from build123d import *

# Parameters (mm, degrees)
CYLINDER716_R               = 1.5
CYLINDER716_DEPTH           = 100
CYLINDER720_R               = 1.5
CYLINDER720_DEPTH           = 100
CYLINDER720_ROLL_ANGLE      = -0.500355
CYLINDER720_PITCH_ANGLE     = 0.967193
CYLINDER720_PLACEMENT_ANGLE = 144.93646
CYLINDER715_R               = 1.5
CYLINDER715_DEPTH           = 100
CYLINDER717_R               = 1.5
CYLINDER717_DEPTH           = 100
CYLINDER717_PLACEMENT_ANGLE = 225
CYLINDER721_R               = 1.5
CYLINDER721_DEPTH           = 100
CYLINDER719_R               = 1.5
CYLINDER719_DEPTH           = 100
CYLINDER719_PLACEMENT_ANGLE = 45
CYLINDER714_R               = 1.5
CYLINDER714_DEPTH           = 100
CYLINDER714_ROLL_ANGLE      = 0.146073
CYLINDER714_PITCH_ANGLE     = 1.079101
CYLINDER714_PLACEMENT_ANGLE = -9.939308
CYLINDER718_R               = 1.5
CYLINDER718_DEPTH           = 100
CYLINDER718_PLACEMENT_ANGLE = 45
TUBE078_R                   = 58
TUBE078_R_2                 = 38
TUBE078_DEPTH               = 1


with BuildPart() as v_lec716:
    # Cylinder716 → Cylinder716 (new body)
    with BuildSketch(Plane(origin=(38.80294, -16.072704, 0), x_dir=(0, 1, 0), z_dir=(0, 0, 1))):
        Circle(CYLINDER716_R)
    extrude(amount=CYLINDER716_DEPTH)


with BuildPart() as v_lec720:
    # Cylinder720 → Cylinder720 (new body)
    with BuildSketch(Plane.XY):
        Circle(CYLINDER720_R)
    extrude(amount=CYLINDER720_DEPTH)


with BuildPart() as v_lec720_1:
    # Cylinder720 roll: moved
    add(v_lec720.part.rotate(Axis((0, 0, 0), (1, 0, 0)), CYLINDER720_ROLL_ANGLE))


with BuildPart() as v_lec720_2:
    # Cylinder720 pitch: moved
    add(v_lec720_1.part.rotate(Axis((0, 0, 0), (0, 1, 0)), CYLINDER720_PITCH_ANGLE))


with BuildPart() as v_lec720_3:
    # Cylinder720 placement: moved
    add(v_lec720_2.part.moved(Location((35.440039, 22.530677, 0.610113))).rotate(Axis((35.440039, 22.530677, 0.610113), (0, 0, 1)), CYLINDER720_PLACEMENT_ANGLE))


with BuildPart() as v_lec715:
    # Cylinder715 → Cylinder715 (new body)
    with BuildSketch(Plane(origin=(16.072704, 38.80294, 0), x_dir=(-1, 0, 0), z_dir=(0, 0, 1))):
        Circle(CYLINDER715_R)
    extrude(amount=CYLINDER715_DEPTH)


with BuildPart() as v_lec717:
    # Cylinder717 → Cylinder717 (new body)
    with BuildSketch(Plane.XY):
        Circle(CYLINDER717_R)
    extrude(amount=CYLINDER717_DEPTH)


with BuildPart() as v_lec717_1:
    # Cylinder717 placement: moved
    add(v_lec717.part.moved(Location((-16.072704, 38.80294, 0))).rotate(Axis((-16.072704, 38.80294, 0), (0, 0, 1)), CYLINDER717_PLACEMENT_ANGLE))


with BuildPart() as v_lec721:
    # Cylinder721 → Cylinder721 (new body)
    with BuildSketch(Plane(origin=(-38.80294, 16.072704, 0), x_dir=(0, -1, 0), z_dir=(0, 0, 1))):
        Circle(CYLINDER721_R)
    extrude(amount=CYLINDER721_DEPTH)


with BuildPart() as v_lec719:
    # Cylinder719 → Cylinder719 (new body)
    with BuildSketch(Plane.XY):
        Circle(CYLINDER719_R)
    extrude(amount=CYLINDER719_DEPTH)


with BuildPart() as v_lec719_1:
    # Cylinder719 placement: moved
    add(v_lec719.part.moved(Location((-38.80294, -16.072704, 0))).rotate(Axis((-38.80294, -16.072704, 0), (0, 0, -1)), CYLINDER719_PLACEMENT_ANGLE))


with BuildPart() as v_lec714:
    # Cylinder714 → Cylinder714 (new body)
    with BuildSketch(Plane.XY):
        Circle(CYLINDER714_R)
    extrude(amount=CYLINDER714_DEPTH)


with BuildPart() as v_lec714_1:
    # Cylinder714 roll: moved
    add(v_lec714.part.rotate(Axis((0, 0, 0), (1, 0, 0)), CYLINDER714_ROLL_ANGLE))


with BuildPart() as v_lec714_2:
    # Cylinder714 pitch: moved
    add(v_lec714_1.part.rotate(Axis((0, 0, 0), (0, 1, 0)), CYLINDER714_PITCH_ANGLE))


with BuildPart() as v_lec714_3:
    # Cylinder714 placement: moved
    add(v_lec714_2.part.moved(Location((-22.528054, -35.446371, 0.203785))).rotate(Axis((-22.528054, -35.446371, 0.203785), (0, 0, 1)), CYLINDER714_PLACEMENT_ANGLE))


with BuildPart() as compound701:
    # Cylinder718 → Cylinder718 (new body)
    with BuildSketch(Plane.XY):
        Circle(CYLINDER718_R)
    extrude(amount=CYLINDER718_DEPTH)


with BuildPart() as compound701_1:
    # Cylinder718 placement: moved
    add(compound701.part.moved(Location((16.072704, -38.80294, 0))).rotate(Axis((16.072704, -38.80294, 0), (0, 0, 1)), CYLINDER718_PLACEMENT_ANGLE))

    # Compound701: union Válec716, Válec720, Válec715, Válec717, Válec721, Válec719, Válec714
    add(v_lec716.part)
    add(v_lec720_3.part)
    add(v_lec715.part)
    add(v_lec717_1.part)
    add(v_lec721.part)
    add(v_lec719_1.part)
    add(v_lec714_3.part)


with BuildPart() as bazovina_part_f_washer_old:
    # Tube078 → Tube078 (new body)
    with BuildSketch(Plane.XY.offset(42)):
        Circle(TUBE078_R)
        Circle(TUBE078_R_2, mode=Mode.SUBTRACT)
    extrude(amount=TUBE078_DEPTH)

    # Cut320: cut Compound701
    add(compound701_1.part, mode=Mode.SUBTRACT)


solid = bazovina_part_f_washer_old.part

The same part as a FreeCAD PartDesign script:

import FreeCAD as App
import Part
import Sketcher
from FreeCAD import Vector
Q = App.Units.Quantity

doc = App.newDocument("Part")
body = doc.addObject("PartDesign::Body", "Body")

# Sketch on XY plane
sketch1 = body.newObject("Sketcher::SketchObject", "Sketch")
sketch1.AttachmentSupport = (doc.getObject("XY_Plane"), [""])
sketch1.MapMode = "FlatFace"
sketch1.addGeometry(Part.Circle(Vector(38.8, -16.1, 0), Vector(0, 0, 1), 1.5), False)
sketch1.addConstraint([
    Sketcher.Constraint("Diameter", 0, Q("3 mm")),
    Sketcher.Constraint("DistanceX", -1, 1, 0, 3, Q("38.80294 mm")),
    Sketcher.Constraint("DistanceY", 0, 3, -1, 1, Q("16.072704 mm")),
])
pad1 = body.newObject("PartDesign::Pad", "Pad")
pad1.Profile = sketch1
pad1.Length = 100
body2 = doc.addObject("PartDesign::Body", "Body001")

# Sketch on XY plane
sketch2 = body2.newObject("Sketcher::SketchObject", "Sketch001")
sketch2.AttachmentSupport = (doc.getObject("XY_Plane001"), [""])
sketch2.MapMode = "FlatFace"
sketch2.addGeometry(Part.Circle(Vector(0, 0, 0), Vector(0, 0, 1), 1.5), False)
sketch2.addConstraint([
    Sketcher.Constraint("Coincident", 0, 3, -1, 1),
    Sketcher.Constraint("Diameter", 0, Q("3 mm")),
])
pad2 = body2.newObject("PartDesign::Pad", "Pad001")
pad2.Profile = sketch2
pad2.Length = 100
body3 = doc.addObject("PartDesign::Body", "Body002")
doc.recompute()

body2.Placement = App.Placement(Vector(0, 0, 0), App.Rotation(Vector(1, 0, 0), 359.499645))
boolean = body3.newObject("PartDesign::Boolean", "Boolean")
boolean.Type = "Fuse"
boolean.addObjects([body2])
body4 = doc.addObject("PartDesign::Body", "Body003")
doc.recompute()

body3.Placement = App.Placement(Vector(0, 0, 0), App.Rotation(Vector(0, 1, 0), 0.967193))
boolean2 = body4.newObject("PartDesign::Boolean", "Boolean001")
boolean2.Type = "Fuse"
boolean2.addObjects([body3])
body5 = doc.addObject("PartDesign::Body", "Body004")
doc.recompute()

body4.Placement = App.Placement(Vector(35.440039, 22.530677, 0.610113), App.Rotation(Vector(0, 0, 1), 144.93646))
boolean3 = body5.newObject("PartDesign::Boolean", "Boolean002")
boolean3.Type = "Fuse"
boolean3.addObjects([body4])
body6 = doc.addObject("PartDesign::Body", "Body005")

# Sketch on XY plane
sketch3 = body6.newObject("Sketcher::SketchObject", "Sketch002")
sketch3.AttachmentSupport = (doc.getObject("XY_Plane005"), [""])
sketch3.MapMode = "FlatFace"
sketch3.addGeometry(Part.Circle(Vector(16.1, 38.8, 0), Vector(0, 0, 1), 1.5), False)
sketch3.addConstraint([
    Sketcher.Constraint("Diameter", 0, Q("3 mm")),
    Sketcher.Constraint("DistanceY", -1, 1, 0, 3, Q("38.80294 mm")),
    Sketcher.Constraint("DistanceX", -1, 1, 0, 3, Q("16.072704 mm")),
])
pad3 = body6.newObject("PartDesign::Pad", "Pad002")
pad3.Profile = sketch3
pad3.Length = 100
body7 = doc.addObject("PartDesign::Body", "Body006")

# Sketch on XY plane
sketch4 = body7.newObject("Sketcher::SketchObject", "Sketch003")
sketch4.AttachmentSupport = (doc.getObject("XY_Plane006"), [""])
sketch4.MapMode = "FlatFace"
sketch4.addGeometry(Part.Circle(Vector(0, 0, 0), Vector(0, 0, 1), 1.5), False)
sketch4.addConstraint([
    Sketcher.Constraint("Coincident", 0, 3, -1, 1),
    Sketcher.Constraint("Diameter", 0, Q("3 mm")),
])
pad4 = body7.newObject("PartDesign::Pad", "Pad003")
pad4.Profile = sketch4
pad4.Length = 100
body8 = doc.addObject("PartDesign::Body", "Body007")
doc.recompute()

body7.Placement = App.Placement(Vector(-16.072704, 38.80294, 0), App.Rotation(Vector(0, 0, 1), 225))
boolean4 = body8.newObject("PartDesign::Boolean", "Boolean003")
boolean4.Type = "Fuse"
boolean4.addObjects([body7])
body9 = doc.addObject("PartDesign::Body", "Body008")

# Sketch on XY plane
sketch5 = body9.newObject("Sketcher::SketchObject", "Sketch004")
sketch5.AttachmentSupport = (doc.getObject("XY_Plane008"), [""])
sketch5.MapMode = "FlatFace"
sketch5.addGeometry(Part.Circle(Vector(-38.8, 16.1, 0), Vector(0, 0, 1), 1.5), False)
sketch5.addConstraint([
    Sketcher.Constraint("Diameter", 0, Q("3 mm")),
    Sketcher.Constraint("DistanceX", 0, 3, -1, 1, Q("38.80294 mm")),
    Sketcher.Constraint("DistanceY", -1, 1, 0, 3, Q("16.072704 mm")),
])
pad5 = body9.newObject("PartDesign::Pad", "Pad004")
pad5.Profile = sketch5
pad5.Length = 100
body10 = doc.addObject("PartDesign::Body", "Body009")

# Sketch on XY plane
sketch6 = body10.newObject("Sketcher::SketchObject", "Sketch005")
sketch6.AttachmentSupport = (doc.getObject("XY_Plane009"), [""])
sketch6.MapMode = "FlatFace"
sketch6.addGeometry(Part.Circle(Vector(0, 0, 0), Vector(0, 0, 1), 1.5), False)
sketch6.addConstraint([
    Sketcher.Constraint("Coincident", 0, 3, -1, 1),
    Sketcher.Constraint("Diameter", 0, Q("3 mm")),
])
pad6 = body10.newObject("PartDesign::Pad", "Pad005")
pad6.Profile = sketch6
pad6.Length = 100
body11 = doc.addObject("PartDesign::Body", "Body010")
doc.recompute()

body10.Placement = App.Placement(Vector(-38.80294, -16.072704, 0), App.Rotation(Vector(0, 0, -1), 45))
boolean5 = body11.newObject("PartDesign::Boolean", "Boolean004")
boolean5.Type = "Fuse"
boolean5.addObjects([body10])
body12 = doc.addObject("PartDesign::Body", "Body011")

# Sketch on XY plane
sketch7 = body12.newObject("Sketcher::SketchObject", "Sketch006")
sketch7.AttachmentSupport = (doc.getObject("XY_Plane011"), [""])
sketch7.MapMode = "FlatFace"
sketch7.addGeometry(Part.Circle(Vector(0, 0, 0), Vector(0, 0, 1), 1.5), False)
sketch7.addConstraint([
    Sketcher.Constraint("Coincident", 0, 3, -1, 1),
    Sketcher.Constraint("Diameter", 0, Q("3 mm")),
])
pad7 = body12.newObject("PartDesign::Pad", "Pad006")
pad7.Profile = sketch7
pad7.Length = 100
body13 = doc.addObject("PartDesign::Body", "Body012")
doc.recompute()

body12.Placement = App.Placement(Vector(0, 0, 0), App.Rotation(Vector(1, 0, 0), 0.146073))
boolean6 = body13.newObject("PartDesign::Boolean", "Boolean005")
boolean6.Type = "Fuse"
boolean6.addObjects([body12])
body14 = doc.addObject("PartDesign::Body", "Body013")
doc.recompute()

body13.Placement = App.Placement(Vector(0, 0, 0), App.Rotation(Vector(0, 1, 0), 1.079101))
boolean7 = body14.newObject("PartDesign::Boolean", "Boolean006")
boolean7.Type = "Fuse"
boolean7.addObjects([body13])
body15 = doc.addObject("PartDesign::Body", "Body014")
doc.recompute()

body14.Placement = App.Placement(Vector(-22.528054, -35.446371, 0.203785), App.Rotation(Vector(0, 0, 1), 350.060692))
boolean8 = body15.newObject("PartDesign::Boolean", "Boolean007")
boolean8.Type = "Fuse"
boolean8.addObjects([body14])
body16 = doc.addObject("PartDesign::Body", "Body015")

# Sketch on XY plane
sketch8 = body16.newObject("Sketcher::SketchObject", "Sketch007")
sketch8.AttachmentSupport = (doc.getObject("XY_Plane015"), [""])
sketch8.MapMode = "FlatFace"
sketch8.addGeometry(Part.Circle(Vector(0, 0, 0), Vector(0, 0, 1), 1.5), False)
sketch8.addConstraint([
    Sketcher.Constraint("Coincident", 0, 3, -1, 1),
    Sketcher.Constraint("Diameter", 0, Q("3 mm")),
])
pad8 = body16.newObject("PartDesign::Pad", "Pad007")
pad8.Profile = sketch8
pad8.Length = 100
body17 = doc.addObject("PartDesign::Body", "Body016")
body17.AllowCompound = True
doc.recompute()

body16.Placement = App.Placement(Vector(16.072704, -38.80294, 0), App.Rotation(Vector(0, 0, 1), 45))
boolean9 = body17.newObject("PartDesign::Boolean", "Boolean008")
boolean9.Type = "Fuse"
boolean9.addObjects([body16])
doc.recompute()

boolean10 = body17.newObject("PartDesign::Boolean", "Boolean009")
boolean10.Type = "Fuse"
boolean10.addObjects([body])
doc.recompute()

boolean11 = body17.newObject("PartDesign::Boolean", "Boolean010")
boolean11.Type = "Fuse"
boolean11.addObjects([body5])
doc.recompute()

boolean12 = body17.newObject("PartDesign::Boolean", "Boolean011")
boolean12.Type = "Fuse"
boolean12.addObjects([body6])
doc.recompute()

boolean13 = body17.newObject("PartDesign::Boolean", "Boolean012")
boolean13.Type = "Fuse"
boolean13.addObjects([body8])
doc.recompute()

boolean14 = body17.newObject("PartDesign::Boolean", "Boolean013")
boolean14.Type = "Fuse"
boolean14.addObjects([body9])
doc.recompute()

boolean15 = body17.newObject("PartDesign::Boolean", "Boolean014")
boolean15.Type = "Fuse"
boolean15.addObjects([body11])
doc.recompute()

boolean16 = body17.newObject("PartDesign::Boolean", "Boolean015")
boolean16.Type = "Fuse"
boolean16.addObjects([body15])
body18 = doc.addObject("PartDesign::Body", "Body017")

# Sketch on XY plane
sketch9 = body18.newObject("Sketcher::SketchObject", "Sketch008")
sketch9.AttachmentSupport = (doc.getObject("XY_Plane017"), [""])
sketch9.MapMode = "FlatFace"
sketch9.AttachmentOffset = App.Placement(Vector(0, 0, 42), App.Rotation())
sketch9.addGeometry([
    Part.Circle(Vector(0, 0, 0), Vector(0, 0, 1), 58),
    Part.Circle(Vector(0, 0, 0), Vector(0, 0, 1), 38),
], False)
sketch9.addConstraint([
    Sketcher.Constraint("Coincident", 0, 3, -1, 1),
    Sketcher.Constraint("Coincident", 1, 3, -1, 1),
    Sketcher.Constraint("Diameter", 0, Q("116 mm")),
    Sketcher.Constraint("Diameter", 1, Q("76 mm")),
])
pad9 = body18.newObject("PartDesign::Pad", "Pad008")
pad9.Profile = sketch9
pad9.Length = 1
doc.recompute()

boolean17 = body18.newObject("PartDesign::Boolean", "Boolean016")
boolean17.Type = "Cut"
boolean17.addObjects([body17])

doc.recompute()
